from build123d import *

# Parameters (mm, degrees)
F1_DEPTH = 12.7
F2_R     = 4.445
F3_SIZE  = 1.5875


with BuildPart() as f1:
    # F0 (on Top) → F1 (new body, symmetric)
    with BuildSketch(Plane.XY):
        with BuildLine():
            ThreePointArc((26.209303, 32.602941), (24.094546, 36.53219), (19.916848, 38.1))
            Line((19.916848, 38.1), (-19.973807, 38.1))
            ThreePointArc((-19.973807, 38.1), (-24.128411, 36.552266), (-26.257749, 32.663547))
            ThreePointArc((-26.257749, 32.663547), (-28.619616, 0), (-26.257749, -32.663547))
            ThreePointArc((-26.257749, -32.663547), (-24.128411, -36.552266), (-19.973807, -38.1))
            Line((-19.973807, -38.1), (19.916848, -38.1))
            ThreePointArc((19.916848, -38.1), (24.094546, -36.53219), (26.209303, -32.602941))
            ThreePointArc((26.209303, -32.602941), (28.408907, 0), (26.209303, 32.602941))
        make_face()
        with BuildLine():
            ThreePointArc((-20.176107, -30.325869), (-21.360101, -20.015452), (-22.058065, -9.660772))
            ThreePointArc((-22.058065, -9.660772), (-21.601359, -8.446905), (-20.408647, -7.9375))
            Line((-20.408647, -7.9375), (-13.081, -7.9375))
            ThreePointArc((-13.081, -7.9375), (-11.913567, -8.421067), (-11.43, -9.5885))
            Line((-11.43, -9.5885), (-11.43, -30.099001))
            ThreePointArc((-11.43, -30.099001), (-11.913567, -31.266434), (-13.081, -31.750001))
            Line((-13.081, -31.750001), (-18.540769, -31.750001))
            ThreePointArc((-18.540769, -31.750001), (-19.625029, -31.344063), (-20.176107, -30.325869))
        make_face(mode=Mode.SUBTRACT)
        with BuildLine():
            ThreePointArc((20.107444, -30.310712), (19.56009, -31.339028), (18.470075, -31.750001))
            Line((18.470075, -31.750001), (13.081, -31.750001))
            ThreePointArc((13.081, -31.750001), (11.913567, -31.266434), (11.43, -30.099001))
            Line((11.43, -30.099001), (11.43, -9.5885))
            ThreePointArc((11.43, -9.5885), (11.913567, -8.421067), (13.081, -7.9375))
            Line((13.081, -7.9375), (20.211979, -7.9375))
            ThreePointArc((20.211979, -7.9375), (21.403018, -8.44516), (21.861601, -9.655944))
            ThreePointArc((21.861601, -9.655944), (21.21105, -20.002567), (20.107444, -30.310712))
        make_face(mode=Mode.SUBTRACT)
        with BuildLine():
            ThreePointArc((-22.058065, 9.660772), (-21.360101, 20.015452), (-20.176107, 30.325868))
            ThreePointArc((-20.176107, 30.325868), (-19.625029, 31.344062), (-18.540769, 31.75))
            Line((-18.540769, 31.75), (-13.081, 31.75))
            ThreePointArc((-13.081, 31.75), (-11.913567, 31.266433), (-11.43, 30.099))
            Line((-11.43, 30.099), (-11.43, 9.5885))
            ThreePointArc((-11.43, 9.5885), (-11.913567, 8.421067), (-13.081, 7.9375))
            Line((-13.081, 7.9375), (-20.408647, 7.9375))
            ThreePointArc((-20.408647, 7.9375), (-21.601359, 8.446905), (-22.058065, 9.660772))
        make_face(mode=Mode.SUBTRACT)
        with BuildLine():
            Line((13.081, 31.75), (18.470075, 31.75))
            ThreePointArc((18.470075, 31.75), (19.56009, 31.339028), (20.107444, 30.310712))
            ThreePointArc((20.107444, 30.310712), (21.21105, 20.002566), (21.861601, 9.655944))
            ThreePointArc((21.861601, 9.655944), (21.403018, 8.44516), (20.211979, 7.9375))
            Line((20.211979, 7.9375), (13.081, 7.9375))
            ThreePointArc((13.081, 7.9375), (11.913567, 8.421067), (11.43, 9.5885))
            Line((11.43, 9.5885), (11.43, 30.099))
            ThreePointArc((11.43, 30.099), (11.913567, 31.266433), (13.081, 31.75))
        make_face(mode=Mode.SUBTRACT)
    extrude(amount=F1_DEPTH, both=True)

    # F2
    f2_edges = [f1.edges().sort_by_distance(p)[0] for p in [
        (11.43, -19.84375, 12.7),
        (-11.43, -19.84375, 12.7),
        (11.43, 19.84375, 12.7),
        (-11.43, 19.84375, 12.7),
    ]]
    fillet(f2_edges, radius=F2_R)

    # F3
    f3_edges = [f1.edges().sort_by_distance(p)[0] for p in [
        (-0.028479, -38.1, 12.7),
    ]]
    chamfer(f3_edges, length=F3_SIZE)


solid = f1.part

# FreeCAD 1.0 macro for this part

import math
import FreeCAD as App
import Part
import Sketcher

V = App.Vector
Q = App.Units.Quantity


def edges_at(feature, points):
    """Names of the edges that pass closest to the given points."""
    edges = feature.Shape.Edges
    near = lambda p: min(range(len(edges)), key=lambda i: edges[i].distToShape(Part.Vertex(*p))[0])
    return sorted({f"Edge{near(p) + 1}" for p in points})

doc = App.newDocument("Part")
body = doc.addObject("PartDesign::Body", "Body")

sketch1 = doc.addObject("Sketcher::SketchObject", "Sketch")
body.addObject(sketch1)
sketch1.AttachmentSupport = (doc.XY_Plane, [""])
sketch1.MapMode = "FlatFace"
sketch1.addGeometry([
    Part.ArcOfCircle(Part.Circle(V(19.916848, 31.750001, 0), V(0, 0, 1), 6.349999), math.radians(7.719377), math.radians(90.000004)),
    Part.LineSegment(V(19.916848, 38.1, 0), V(-19.973807, 38.1, 0)),
    Part.ArcOfCircle(Part.Circle(V(-19.973806, 31.749999, 0), V(0, 0, 1), 6.350001), math.radians(90.00001), math.radians(171.728395)),
    Part.ArcOfCircle(Part.Circle(V(198.422321, 0, 0), V(0, 0, 1), 227.041937), math.radians(171.7284), math.radians(188.2716)),
    Part.ArcOfCircle(Part.Circle(V(-19.973806, -31.749999, 0), V(0, 0, 1), 6.350001), math.radians(-171.728395), math.radians(-90.00001)),
    Part.LineSegment(V(-19.973807, -38.1, 0), V(19.916848, -38.1, 0)),
    Part.ArcOfCircle(Part.Circle(V(19.916848, -31.750001, 0), V(0, 0, 1), 6.349999), math.radians(-90.000004), math.radians(-7.719377)),
    Part.ArcOfCircle(Part.Circle(V(-214.314333, 0, 0), V(0, 0, 1), 242.72324), math.radians(-7.719385), math.radians(7.719385)),
    Part.ArcOfCircle(Part.Circle(V(-18.540768, -30.099, 0), V(0, 0, 1), 1.651001), math.radians(-172.101831), math.radians(-90.00004)),
    Part.ArcOfCircle(Part.Circle(V(198.421814, -0.000044, 0), V(0, 0, 1), 220.691429), math.radians(-177.491086), math.radians(-172.101837)),
    Part.ArcOfCircle(Part.Circle(V(-20.408647, -9.588501, 0), V(0, 0, 1), 1.651001), math.radians(90.000013), math.radians(182.508872)),
    Part.LineSegment(V(-20.408647, -7.9375, 0), V(-13.081, -7.9375, 0)),
    Part.ArcOfCircle(Part.Circle(V(-13.081001, -9.588501, 0), V(0, 0, 1), 1.651001), math.radians(0.000035), math.radians(89.999965)),
    Part.LineSegment(V(-11.43, -9.5885, 0), V(-11.43, -30.099001, 0)),
    Part.ArcOfCircle(Part.Circle(V(-13.081001, -30.099, 0), V(0, 0, 1), 1.651001), math.radians(-89.999965), math.radians(-0.000035)),
    Part.LineSegment(V(-13.081, -31.750001, 0), V(-18.540769, -31.750001, 0)),
    Part.ArcOfCircle(Part.Circle(V(-214.314772, 0.000044, 0), V(0, 0, 1), 236.373682), math.radians(-7.367459), math.radians(-2.341214)),
    Part.ArcOfCircle(Part.Circle(V(18.470074, -30.099001, 0), V(0, 0, 1), 1.651), math.radians(-89.99998), math.radians(-7.367433)),
    Part.LineSegment(V(18.470075, -31.750001, 0), V(13.081, -31.750001, 0)),
    Part.ArcOfCircle(Part.Circle(V(13.081001, -30.099, 0), V(0, 0, 1), 1.651001), math.radians(-179.999965), math.radians(-90.000035)),
    Part.LineSegment(V(11.43, -30.099001, 0), V(11.43, -9.5885, 0)),
    Part.ArcOfCircle(Part.Circle(V(13.081001, -9.588501, 0), V(0, 0, 1), 1.651001), math.radians(90.000035), math.radians(179.999965)),
    Part.LineSegment(V(13.081, -7.9375, 0), V(20.211979, -7.9375, 0)),
    Part.ArcOfCircle(Part.Circle(V(20.211978, -9.588501, 0), V(0, 0, 1), 1.651001), math.radians(-2.34118), math.radians(89.999978)),
    Part.ArcOfCircle(Part.Circle(V(-20.408647, 9.588501, 0), V(0, 0, 1), 1.651001), math.radians(177.491128), math.radians(269.999987)),
    Part.ArcOfCircle(Part.Circle(V(198.421752, 0.000049, 0), V(0, 0, 1), 220.691366), math.radians(172.101836), math.radians(177.491086)),
    Part.ArcOfCircle(Part.Circle(V(-18.540768, 30.098999, 0), V(0, 0, 1), 1.651001), math.radians(90.00004), math.radians(172.101831)),
    Part.LineSegment(V(-18.540769, 31.75, 0), V(-13.081, 31.75, 0)),
    Part.ArcOfCircle(Part.Circle(V(-13.081001, 30.098999, 0), V(0, 0, 1), 1.651001), math.radians(0.000035), math.radians(89.999965)),
    Part.LineSegment(V(-11.43, 30.099, 0), V(-11.43, 9.5885, 0)),
    Part.ArcOfCircle(Part.Circle(V(-13.081001, 9.588501, 0), V(0, 0, 1), 1.651001), math.radians(-89.999965), math.radians(-0.000035)),
    Part.LineSegment(V(-13.081, 7.9375, 0), V(-20.408647, 7.9375, 0)),
    Part.ArcOfCircle(Part.Circle(V(13.081001, 30.098999, 0), V(0, 0, 1), 1.651001), math.radians(90.000035), math.radians(179.999965)),
    Part.LineSegment(V(13.081, 31.75, 0), V(18.470075, 31.75, 0)),
    Part.ArcOfCircle(Part.Circle(V(18.470076, 30.099002, 0), V(0, 0, 1), 1.650998), math.radians(7.367407), math.radians(90.000046)),
    Part.ArcOfCircle(Part.Circle(V(-214.31486, -0.000051, 0), V(0, 0, 1), 236.373769), math.radians(2.341215), math.radians(7.367458)),
    Part.ArcOfCircle(Part.Circle(V(20.211978, 9.588501, 0), V(0, 0, 1), 1.651001), math.radians(-89.999978), math.radians(2.34118)),
    Part.LineSegment(V(20.211979, 7.9375, 0), V(13.081, 7.9375, 0)),
    Part.ArcOfCircle(Part.Circle(V(13.081001, 9.588501, 0), V(0, 0, 1), 1.651001), math.radians(-179.999965), math.radians(-90.000035)),
    Part.LineSegment(V(11.43, 9.5885, 0), V(11.43, 30.099, 0)),
], False)
sketch1.addConstraint([
    Sketcher.Constraint("Tangent", 0, 2, 1, 1),
    Sketcher.Constraint("Tangent", 1, 2, 2, 1),
    Sketcher.Constraint("Tangent", 2, 2, 3, 1),
    Sketcher.Constraint("Tangent", 3, 2, 4, 1),
    Sketcher.Constraint("Tangent", 4, 2, 5, 1),
    Sketcher.Constraint("Tangent", 5, 2, 6, 1),
    Sketcher.Constraint("Tangent", 6, 2, 7, 1),
    Sketcher.Constraint("Tangent", 7, 2, 0, 1),
    Sketcher.Constraint("Tangent", 8, 1, 9, 2),
    Sketcher.Constraint("Tangent", 9, 1, 10, 2),
    Sketcher.Constraint("Tangent", 10, 1, 11, 1),
    Sketcher.Constraint("Tangent", 11, 2, 12, 2),
    Sketcher.Constraint("Tangent", 12, 1, 13, 1),
    Sketcher.Constraint("Tangent", 13, 2, 14, 2),
    Sketcher.Constraint("Tangent", 14, 1, 15, 1),
    Sketcher.Constraint("Tangent", 15, 2, 8, 2),
    Sketcher.Constraint("Tangent", 16, 1, 17, 2),
    Sketcher.Constraint("Tangent", 17, 1, 18, 1),
    Sketcher.Constraint("Tangent", 18, 2, 19, 2),
    Sketcher.Constraint("Tangent", 19, 1, 20, 1),
    Sketcher.Constraint("Tangent", 20, 2, 21, 2),
    Sketcher.Constraint("Tangent", 21, 1, 22, 1),
    Sketcher.Constraint("Tangent", 22, 2, 23, 2),
    Sketcher.Constraint("Tangent", 23, 1, 16, 2),
    Sketcher.Constraint("Tangent", 24, 1, 25, 2),
    Sketcher.Constraint("Tangent", 25, 1, 26, 2),
    Sketcher.Constraint("Tangent", 26, 1, 27, 1),
    Sketcher.Constraint("Tangent", 27, 2, 28, 2),
    Sketcher.Constraint("Tangent", 28, 1, 29, 1),
    Sketcher.Constraint("Tangent", 29, 2, 30, 2),
    Sketcher.Constraint("Tangent", 30, 1, 31, 1),
    Sketcher.Constraint("Tangent", 31, 2, 24, 2),
    Sketcher.Constraint("Tangent", 32, 1, 33, 1),
    Sketcher.Constraint("Tangent", 33, 2, 34, 2),
    Sketcher.Constraint("Tangent", 34, 1, 35, 2),
    Sketcher.Constraint("Tangent", 35, 1, 36, 2),
    Sketcher.Constraint("Tangent", 36, 1, 37, 1),
    Sketcher.Constraint("Tangent", 37, 2, 38, 2),
    Sketcher.Constraint("Tangent", 38, 1, 39, 1),
    Sketcher.Constraint("Tangent", 39, 2, 32, 2),
    Sketcher.Constraint("Horizontal", 1),
    Sketcher.Constraint("Horizontal", 5),
    Sketcher.Constraint("Horizontal", 11),
    Sketcher.Constraint("Vertical", 13),
    Sketcher.Constraint("Horizontal", 15),
    Sketcher.Constraint("Horizontal", 18),
    Sketcher.Constraint("Vertical", 20),
    Sketcher.Constraint("Horizontal", 22),
    Sketcher.Constraint("Horizontal", 27),
    Sketcher.Constraint("Vertical", 29),
    Sketcher.Constraint("Horizontal", 31),
    Sketcher.Constraint("Horizontal", 33),
    Sketcher.Constraint("Horizontal", 37),
    Sketcher.Constraint("Vertical", 39),
    Sketcher.Constraint("Equal", 0, 2),
    Sketcher.Constraint("Equal", 2, 4),
    Sketcher.Constraint("Equal", 4, 6),
    Sketcher.Constraint("Equal", 8, 10),
    Sketcher.Constraint("Equal", 10, 12),
    Sketcher.Constraint("Equal", 12, 14),
    Sketcher.Constraint("Equal", 14, 17),
    Sketcher.Constraint("Equal", 17, 19),
    Sketcher.Constraint("Equal", 19, 21),
    Sketcher.Constraint("Equal", 21, 23),
    Sketcher.Constraint("Equal", 23, 24),
    Sketcher.Constraint("Equal", 24, 26),
    Sketcher.Constraint("Equal", 26, 28),
    Sketcher.Constraint("Equal", 28, 30),
    Sketcher.Constraint("Equal", 30, 32),
    Sketcher.Constraint("Equal", 32, 36),
    Sketcher.Constraint("Equal", 36, 38),
    Sketcher.Constraint("Symmetric", 19, 3, 28, 3, -1, 1),
    Sketcher.Constraint("Symmetric", 14, 3, 32, 3, -1, 1),
    Sketcher.Constraint("Symmetric", 14, 3, 19, 3, -2),
    Sketcher.Constraint("Symmetric", 2, 3, 4, 3, -1),
    Sketcher.Constraint("Symmetric", 10, 3, 24, 3, -1),
    Sketcher.Constraint("Symmetric", 17, 3, 34, 3, -1),
    Sketcher.Constraint("Symmetric", 23, 3, 36, 3, -1),
    Sketcher.Constraint("PointOnObject", 7, 3, -1),
    Sketcher.Constraint("Horizontal", 12, 3, 21, 3),
    Sketcher.Constraint("Horizontal", 6, 3, 14, 1),
    Sketcher.Constraint("Vertical", 8, 3, 26, 3),
    Sketcher.Constraint("Radius", 0, Q("0.25 in")),
    Sketcher.Constraint("Radius", 8, Q("0.065 in")),
    Sketcher.Constraint("DistanceY", -1, 1, 0, 2, Q("1.5 in")),
    Sketcher.Constraint("DistanceX", 12, 1, -1, 1, Q("0.45 in")),
    Sketcher.Constraint("DistanceY", 13, 2, 13, 1, Q("0.8075 in")),
    Sketcher.Constraint("Radius", 7, Q("242.72324 mm")),
    Sketcher.Constraint("Radius", 9, Q("220.691429 mm")),
    Sketcher.Constraint("Radius", 16, Q("236.373682 mm")),
    Sketcher.Constraint("Radius", 35, Q("236.373769 mm")),
    Sketcher.Constraint("Radius", 3, Q("227.041937 mm")),
    Sketcher.Constraint("Radius", 25, Q("220.691366 mm")),
    Sketcher.Constraint("DistanceX", 15, 2, 15, 1, Q("5.459769 mm")),
    Sketcher.Constraint("DistanceX", 22, 1, 22, 2, Q("7.130979 mm")),
    Sketcher.Constraint("DistanceX", 1, 2, 1, 1, Q("39.890655 mm")),
    Sketcher.Constraint("DistanceX", 11, 1, 11, 2, Q("7.327647 mm")),
    Sketcher.Constraint("DistanceX", 18, 2, 18, 1, Q("5.389075 mm")),
    Sketcher.Constraint("DistanceX", -1, 1, 0, 3, Q("19.916848 mm")),
])
pad1 = doc.addObject("PartDesign::Pad", "Pad")
body.addObject(pad1)
pad1.Profile = sketch1
pad1.Length = Q("1 in")
pad1.Midplane = True
doc.recompute()

fillet = doc.addObject("PartDesign::Fillet", "Fillet")
body.addObject(fillet)
fillet.Base = (pad1, edges_at(pad1, [
    (11.43, -19.844, 12.7),
    (-11.43, -19.844, 12.7),
    (11.43, 19.844, 12.7),
    (-11.43, 19.844, 12.7),
]))
fillet.Radius = Q("0.175 in")
doc.recompute()

chamfer = doc.addObject("PartDesign::Chamfer", "Chamfer")
body.addObject(chamfer)
chamfer.Base = (fillet, edges_at(fillet, [(-0.028, -38.1, 12.7)]))
chamfer.Size = Q("0.0625 in")

doc.recompute()
